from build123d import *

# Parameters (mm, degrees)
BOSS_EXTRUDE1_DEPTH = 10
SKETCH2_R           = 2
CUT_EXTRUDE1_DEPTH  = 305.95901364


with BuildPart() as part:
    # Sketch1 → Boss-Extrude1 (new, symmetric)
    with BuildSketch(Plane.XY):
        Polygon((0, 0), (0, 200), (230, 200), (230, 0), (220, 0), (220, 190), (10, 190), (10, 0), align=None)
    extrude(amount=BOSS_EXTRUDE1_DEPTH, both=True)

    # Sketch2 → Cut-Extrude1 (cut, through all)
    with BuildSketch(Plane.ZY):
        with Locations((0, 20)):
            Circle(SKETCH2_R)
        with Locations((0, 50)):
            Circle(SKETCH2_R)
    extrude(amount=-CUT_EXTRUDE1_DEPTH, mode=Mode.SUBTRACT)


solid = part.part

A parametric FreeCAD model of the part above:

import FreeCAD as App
import Part
import Sketcher

V = App.Vector

doc = App.newDocument("Part")
params = doc.addObject("Spreadsheet::Sheet", "Params")
for row, (alias, value) in enumerate([
    ("sketch1_width", "10 mm"),
    ("sketch1_width2", "210 mm"),
    ("sketch1_height", "200 mm"),
    ("sketch1_height2", "190 mm"),
    ("pad1_length", "20 mm"),
    ("sketch2_diameter", "4 mm"),
], start=1):
    params.set(f"A{row}", alias)
    params.set(f"B{row}", "=" + value)
    params.setAlias(f"B{row}", alias)

body = doc.addObject("PartDesign::Body", "Body")

sketch1 = body.newObject("Sketcher::SketchObject", "Sketch")
sketch1.AttachmentSupport = (doc.getObject("XY_Plane"), [""])
sketch1.MapMode = "FlatFace"
sketch1.addGeometry([
    Part.LineSegment(V(0, 200, 0), V(0, 0, 0)),
    Part.LineSegment(V(0, 0, 0), V(10, 0, 0)),
    Part.LineSegment(V(10, 0, 0), V(10, 190, 0)),
    Part.LineSegment(V(10, 190, 0), V(220, 190, 0)),
    Part.LineSegment(V(220, 190, 0), V(220, 0, 0)),
    Part.LineSegment(V(220, 0, 0), V(230, 0, 0)),
    Part.LineSegment(V(230, 0, 0), V(230, 200, 0)),
    Part.LineSegment(V(230, 200, 0), V(0, 200, 0)),
], False)
sketch1.addConstraint([
    Sketcher.Constraint("Coincident", 0, 2, 1, 1),
    Sketcher.Constraint("Coincident", 1, 2, 2, 1),
    Sketcher.Constraint("Coincident", 2, 2, 3, 1),
    Sketcher.Constraint("Coincident", 3, 2, 4, 1),
    Sketcher.Constraint("Coincident", 4, 2, 5, 1),
    Sketcher.Constraint("Coincident", 5, 2, 6, 1),
    Sketcher.Constraint("Coincident", 6, 2, 7, 1),
    Sketcher.Constraint("Coincident", 7, 2, 0, 1),
    Sketcher.Constraint("Vertical", 0),
    Sketcher.Constraint("Horizontal", 1),
    Sketcher.Constraint("Vertical", 2),
    Sketcher.Constraint("Horizontal", 3),
    Sketcher.Constraint("Vertical", 4),
    Sketcher.Constraint("Horizontal", 5),
    Sketcher.Constraint("Vertical", 6),
    Sketcher.Constraint("Horizontal", 7),
    Sketcher.Constraint("Coincident", 0, 2, -1, 1),
    Sketcher.Constraint("PointOnObject", 4, 2, -1),
    Sketcher.Constraint("Equal", 1, 5),
    Sketcher.Constraint("DistanceX", 1, 1, 1, 2, 10.0),
    Sketcher.Constraint("DistanceX", 3, 1, 3, 2, 210.0),
    Sketcher.Constraint("DistanceY", 0, 2, 0, 1, 200.0),
    Sketcher.Constraint("DistanceY", 2, 1, 2, 2, 190.0),
])
sketch1.setExpression("Constraints[19]", "Params.sketch1_width")
sketch1.setExpression("Constraints[20]", "Params.sketch1_width2")
sketch1.setExpression("Constraints[21]", "Params.sketch1_height")
sketch1.setExpression("Constraints[22]", "Params.sketch1_height2")
pad1 = body.newObject("PartDesign::Pad", "Pad")
pad1.Profile = sketch1
pad1.setExpression("Length", "Params.pad1_length")
pad1.Midplane = True

sketch2 = body.newObject("Sketcher::SketchObject", "Sketch001")
sketch2.AttachmentSupport = (doc.getObject("YZ_Plane"), [""])
sketch2.MapMode = "FlatFace"
sketch2.addGeometry([
    Part.Circle(V(20, 0, 0), V(0, 0, 1), 2),
    Part.Circle(V(50, 0, 0), V(0, 0, 1), 2),
], False)
sketch2.addConstraint([
    Sketcher.Constraint("Equal", 0, 1),
    Sketcher.Constraint("PointOnObject", 0, 3, -1),
    Sketcher.Constraint("PointOnObject", 1, 3, -1),
    Sketcher.Constraint("Diameter", 0, 4.0),
    Sketcher.Constraint("DistanceX", -1, 1, 0, 3, 20.0),
    Sketcher.Constraint("DistanceX", -1, 1, 1, 3, 50.0),
])
sketch2.setExpression("Constraints[3]", "Params.sketch2_diameter")
pocket1 = body.newObject("PartDesign::Pocket", "Pocket")
pocket1.Profile = sketch2
pocket1.Type = "ThroughAll"
pocket1.Reversed = True

doc.recompute()
